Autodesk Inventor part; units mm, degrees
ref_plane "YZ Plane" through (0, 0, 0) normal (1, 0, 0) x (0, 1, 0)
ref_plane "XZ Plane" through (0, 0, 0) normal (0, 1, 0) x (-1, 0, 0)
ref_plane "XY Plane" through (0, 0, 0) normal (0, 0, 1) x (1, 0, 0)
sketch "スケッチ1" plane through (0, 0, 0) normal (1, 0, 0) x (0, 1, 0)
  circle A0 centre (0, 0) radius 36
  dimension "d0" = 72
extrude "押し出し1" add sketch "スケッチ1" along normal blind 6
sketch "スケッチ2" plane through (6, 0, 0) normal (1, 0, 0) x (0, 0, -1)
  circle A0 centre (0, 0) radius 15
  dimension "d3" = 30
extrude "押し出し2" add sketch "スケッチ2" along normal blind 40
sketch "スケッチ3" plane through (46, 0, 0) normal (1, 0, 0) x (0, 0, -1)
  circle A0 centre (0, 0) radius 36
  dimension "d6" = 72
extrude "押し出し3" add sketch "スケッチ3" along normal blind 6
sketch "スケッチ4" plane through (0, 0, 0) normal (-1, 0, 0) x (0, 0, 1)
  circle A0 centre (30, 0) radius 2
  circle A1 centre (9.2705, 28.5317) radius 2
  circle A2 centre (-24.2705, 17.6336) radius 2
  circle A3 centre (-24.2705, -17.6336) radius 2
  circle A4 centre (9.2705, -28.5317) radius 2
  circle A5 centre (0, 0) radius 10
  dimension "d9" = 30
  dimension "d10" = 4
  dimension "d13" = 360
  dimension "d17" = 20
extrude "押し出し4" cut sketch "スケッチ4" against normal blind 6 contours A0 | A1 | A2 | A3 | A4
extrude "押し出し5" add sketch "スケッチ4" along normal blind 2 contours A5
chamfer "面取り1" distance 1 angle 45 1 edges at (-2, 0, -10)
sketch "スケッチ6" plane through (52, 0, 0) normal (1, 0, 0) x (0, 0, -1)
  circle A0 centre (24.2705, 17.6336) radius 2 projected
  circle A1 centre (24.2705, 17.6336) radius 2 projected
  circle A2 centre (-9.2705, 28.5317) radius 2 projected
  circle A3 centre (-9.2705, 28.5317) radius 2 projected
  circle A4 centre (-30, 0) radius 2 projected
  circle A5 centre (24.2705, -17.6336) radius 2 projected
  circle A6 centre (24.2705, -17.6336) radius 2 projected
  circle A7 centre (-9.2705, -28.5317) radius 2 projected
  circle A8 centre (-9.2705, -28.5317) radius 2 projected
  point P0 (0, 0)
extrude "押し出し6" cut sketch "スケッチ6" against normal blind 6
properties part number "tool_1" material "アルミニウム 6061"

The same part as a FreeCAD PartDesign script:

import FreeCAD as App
import Part
import Sketcher
from FreeCAD import Vector


def edges_at(feature, points):
    """Names of the edges that pass closest to the given points."""
    edges = feature.Shape.Edges
    near = lambda p: min(range(len(edges)), key=lambda i: edges[i].distToShape(Part.Vertex(*p))[0])
    return sorted({f"Edge{near(p) + 1}" for p in points})

doc = App.newDocument("Part")
body = doc.addObject("PartDesign::Body", "Body")

# Sketch on YZ plane
sketch1 = body.newObject("Sketcher::SketchObject", "Sketch")
sketch1.AttachmentSupport = (doc.getObject("YZ_Plane"), [""])
sketch1.MapMode = "FlatFace"
sketch1.addGeometry(Part.Circle(Vector(0, 0, 0), Vector(0, 0, 1), 36), False)
sketch1.addConstraint(Sketcher.Constraint("Coincident", 0, 3, -1, 1))
sketch1.addConstraint(Sketcher.Constraint("Diameter", 0, 72.0))
pad1 = body.newObject("PartDesign::Pad", "Pad")
pad1.Profile = sketch1
pad1.Length = 6

# Sketch on YZ plane
sketch2 = body.newObject("Sketcher::SketchObject", "Sketch001")
sketch2.AttachmentSupport = (doc.getObject("YZ_Plane"), [""])
sketch2.MapMode = "FlatFace"
sketch2.AttachmentOffset = App.Placement(Vector(0, 0, 6), App.Rotation())
sketch2.addGeometry(Part.Circle(Vector(0, 0, 0), Vector(0, 0, 1), 15), False)
sketch2.addConstraint(Sketcher.Constraint("Coincident", 0, 3, -1, 1))
sketch2.addConstraint(Sketcher.Constraint("Diameter", 0, 30.0))
pad2 = body.newObject("PartDesign::Pad", "Pad001")
pad2.Profile = sketch2
pad2.Length = 40

# Sketch on YZ plane
sketch3 = body.newObject("Sketcher::SketchObject", "Sketch002")
sketch3.AttachmentSupport = (doc.getObject("YZ_Plane"), [""])
sketch3.MapMode = "FlatFace"
sketch3.AttachmentOffset = App.Placement(Vector(0, 0, 46), App.Rotation())
sketch3.addGeometry(Part.Circle(Vector(0, 0, 0), Vector(0, 0, 1), 36), False)
sketch3.addConstraint(Sketcher.Constraint("Coincident", 0, 3, -1, 1))
sketch3.addConstraint(Sketcher.Constraint("Diameter", 0, 72.0))
pad3 = body.newObject("PartDesign::Pad", "Pad002")
pad3.Profile = sketch3
pad3.Length = 6

# Sketch on YZ plane
sketch4 = body.newObject("Sketcher::SketchObject", "Sketch003")
sketch4.AttachmentSupport = (doc.getObject("YZ_Plane"), [""])
sketch4.MapMode = "FlatFace"
sketch4.addGeometry(Part.Circle(Vector(0, 30, 0), Vector(0, 0, 1), 2), False)
sketch4.addGeometry(Part.Circle(Vector(28.5, 9.3, 0), Vector(0, 0, 1), 2), False)
sketch4.addGeometry(Part.Circle(Vector(17.6, -24.3, 0), Vector(0, 0, 1), 2), False)
sketch4.addGeometry(Part.Circle(Vector(-17.6, -24.3, 0), Vector(0, 0, 1), 2), False)
sketch4.addGeometry(Part.Circle(Vector(-28.5, 9.3, 0), Vector(0, 0, 1), 2), False)
sketch4.addConstraint(Sketcher.Constraint("Equal", 0, 1))
sketch4.addConstraint(Sketcher.Constraint("Equal", 1, 2))
sketch4.addConstraint(Sketcher.Constraint("Equal", 2, 3))
sketch4.addConstraint(Sketcher.Constraint("Equal", 3, 4))
sketch4.addConstraint(Sketcher.Constraint("Symmetric", 2, 3, 3, 3, -2))
sketch4.addConstraint(Sketcher.Constraint("Symmetric", 1, 3, 4, 3, -2))
sketch4.addConstraint(Sketcher.Constraint("PointOnObject", 0, 3, -2))
sketch4.addConstraint(Sketcher.Constraint("Diameter", 0, 4.0))
sketch4.addConstraint(Sketcher.Constraint("DistanceY", -1, 1, 0, 3, 30.0))
sketch4.addConstraint(Sketcher.Constraint("DistanceX", 2, 3, 1, 3, 10.898))
sketch4.addConstraint(Sketcher.Constraint("DistanceY", 2, 3, 1, 3, 33.541))
sketch4.addConstraint(Sketcher.Constraint("DistanceX", -1, 1, 1, 3, 28.5317))
sketch4.addConstraint(Sketcher.Constraint("DistanceY", -1, 1, 1, 3, 9.2705))
pocket1 = body.newObject("PartDesign::Pocket", "Pocket")
pocket1.Profile = sketch4
pocket1.Length = 6
pocket1.Reversed = True

# Sketch on YZ plane
sketch5 = body.newObject("Sketcher::SketchObject", "Sketch004")
sketch5.AttachmentSupport = (doc.getObject("YZ_Plane"), [""])
sketch5.MapMode = "FlatFace"
sketch5.addGeometry(Part.Circle(Vector(0, 0, 0), Vector(0, 0, 1), 10), False)
sketch5.addConstraint(Sketcher.Constraint("Coincident", 0, 3, -1, 1))
sketch5.addConstraint(Sketcher.Constraint("Diameter", 0, 20.0))
pad4 = body.newObject("PartDesign::Pad", "Pad003")
pad4.Profile = sketch5
pad4.Length = 2
pad4.Reversed = True
doc.recompute()

chamfer = body.newObject("PartDesign::Chamfer", "Chamfer")
chamfer.Base = (pad4, edges_at(pad4, [(-2, 0, -10)]))
chamfer.Size = 1

# Sketch on YZ plane
sketch6 = body.newObject("Sketcher::SketchObject", "Sketch005")
sketch6.AttachmentSupport = (doc.getObject("YZ_Plane"), [""])
sketch6.MapMode = "FlatFace"
sketch6.AttachmentOffset = App.Placement(Vector(0, 0, 52), App.Rotation())
sketch6.addGeometry(Part.Circle(Vector(17.6, -24.3, 0), Vector(0, 0, 1), 2), False)
sketch6.addGeometry(Part.Circle(Vector(28.5, 9.3, 0), Vector(0, 0, 1), 2), False)
sketch6.addGeometry(Part.Circle(Vector(0, 30, 0), Vector(0, 0, 1), 2), False)
sketch6.addGeometry(Part.Circle(Vector(-17.6, -24.3, 0), Vector(0, 0, 1), 2), False)
sketch6.addGeometry(Part.Circle(Vector(-28.5, 9.3, 0), Vector(0, 0, 1), 2), False)
sketch6.addConstraint(Sketcher.Constraint("Equal", 0, 1))
sketch6.addConstraint(Sketcher.Constraint("Equal", 1, 2))
sketch6.addConstraint(Sketcher.Constraint("Equal", 2, 3))
sketch6.addConstraint(Sketcher.Constraint("Equal", 3, 4))
sketch6.addConstraint(Sketcher.Constraint("Symmetric", 0, 3, 3, 3, -2))
sketch6.addConstraint(Sketcher.Constraint("Symmetric", 1, 3, 4, 3, -2))
sketch6.addConstraint(Sketcher.Constraint("PointOnObject", 2, 3, -2))
sketch6.addConstraint(Sketcher.Constraint("Diameter", 0, 4.0))
sketch6.addConstraint(Sketcher.Constraint("DistanceY", -1, 1, 2, 3, 30.0))
sketch6.addConstraint(Sketcher.Constraint("DistanceX", 0, 3, 1, 3, 10.898))
sketch6.addConstraint(Sketcher.Constraint("DistanceY", 0, 3, 1, 3, 33.541))
sketch6.addConstraint(Sketcher.Constraint("DistanceX", -1, 1, 0, 3, 17.6336))
sketch6.addConstraint(Sketcher.Constraint("DistanceY", 0, 3, -1, 1, 24.2705))
pocket2 = body.newObject("PartDesign::Pocket", "Pocket001")
pocket2.Profile = sketch6
pocket2.Length = 6

doc.recompute()
